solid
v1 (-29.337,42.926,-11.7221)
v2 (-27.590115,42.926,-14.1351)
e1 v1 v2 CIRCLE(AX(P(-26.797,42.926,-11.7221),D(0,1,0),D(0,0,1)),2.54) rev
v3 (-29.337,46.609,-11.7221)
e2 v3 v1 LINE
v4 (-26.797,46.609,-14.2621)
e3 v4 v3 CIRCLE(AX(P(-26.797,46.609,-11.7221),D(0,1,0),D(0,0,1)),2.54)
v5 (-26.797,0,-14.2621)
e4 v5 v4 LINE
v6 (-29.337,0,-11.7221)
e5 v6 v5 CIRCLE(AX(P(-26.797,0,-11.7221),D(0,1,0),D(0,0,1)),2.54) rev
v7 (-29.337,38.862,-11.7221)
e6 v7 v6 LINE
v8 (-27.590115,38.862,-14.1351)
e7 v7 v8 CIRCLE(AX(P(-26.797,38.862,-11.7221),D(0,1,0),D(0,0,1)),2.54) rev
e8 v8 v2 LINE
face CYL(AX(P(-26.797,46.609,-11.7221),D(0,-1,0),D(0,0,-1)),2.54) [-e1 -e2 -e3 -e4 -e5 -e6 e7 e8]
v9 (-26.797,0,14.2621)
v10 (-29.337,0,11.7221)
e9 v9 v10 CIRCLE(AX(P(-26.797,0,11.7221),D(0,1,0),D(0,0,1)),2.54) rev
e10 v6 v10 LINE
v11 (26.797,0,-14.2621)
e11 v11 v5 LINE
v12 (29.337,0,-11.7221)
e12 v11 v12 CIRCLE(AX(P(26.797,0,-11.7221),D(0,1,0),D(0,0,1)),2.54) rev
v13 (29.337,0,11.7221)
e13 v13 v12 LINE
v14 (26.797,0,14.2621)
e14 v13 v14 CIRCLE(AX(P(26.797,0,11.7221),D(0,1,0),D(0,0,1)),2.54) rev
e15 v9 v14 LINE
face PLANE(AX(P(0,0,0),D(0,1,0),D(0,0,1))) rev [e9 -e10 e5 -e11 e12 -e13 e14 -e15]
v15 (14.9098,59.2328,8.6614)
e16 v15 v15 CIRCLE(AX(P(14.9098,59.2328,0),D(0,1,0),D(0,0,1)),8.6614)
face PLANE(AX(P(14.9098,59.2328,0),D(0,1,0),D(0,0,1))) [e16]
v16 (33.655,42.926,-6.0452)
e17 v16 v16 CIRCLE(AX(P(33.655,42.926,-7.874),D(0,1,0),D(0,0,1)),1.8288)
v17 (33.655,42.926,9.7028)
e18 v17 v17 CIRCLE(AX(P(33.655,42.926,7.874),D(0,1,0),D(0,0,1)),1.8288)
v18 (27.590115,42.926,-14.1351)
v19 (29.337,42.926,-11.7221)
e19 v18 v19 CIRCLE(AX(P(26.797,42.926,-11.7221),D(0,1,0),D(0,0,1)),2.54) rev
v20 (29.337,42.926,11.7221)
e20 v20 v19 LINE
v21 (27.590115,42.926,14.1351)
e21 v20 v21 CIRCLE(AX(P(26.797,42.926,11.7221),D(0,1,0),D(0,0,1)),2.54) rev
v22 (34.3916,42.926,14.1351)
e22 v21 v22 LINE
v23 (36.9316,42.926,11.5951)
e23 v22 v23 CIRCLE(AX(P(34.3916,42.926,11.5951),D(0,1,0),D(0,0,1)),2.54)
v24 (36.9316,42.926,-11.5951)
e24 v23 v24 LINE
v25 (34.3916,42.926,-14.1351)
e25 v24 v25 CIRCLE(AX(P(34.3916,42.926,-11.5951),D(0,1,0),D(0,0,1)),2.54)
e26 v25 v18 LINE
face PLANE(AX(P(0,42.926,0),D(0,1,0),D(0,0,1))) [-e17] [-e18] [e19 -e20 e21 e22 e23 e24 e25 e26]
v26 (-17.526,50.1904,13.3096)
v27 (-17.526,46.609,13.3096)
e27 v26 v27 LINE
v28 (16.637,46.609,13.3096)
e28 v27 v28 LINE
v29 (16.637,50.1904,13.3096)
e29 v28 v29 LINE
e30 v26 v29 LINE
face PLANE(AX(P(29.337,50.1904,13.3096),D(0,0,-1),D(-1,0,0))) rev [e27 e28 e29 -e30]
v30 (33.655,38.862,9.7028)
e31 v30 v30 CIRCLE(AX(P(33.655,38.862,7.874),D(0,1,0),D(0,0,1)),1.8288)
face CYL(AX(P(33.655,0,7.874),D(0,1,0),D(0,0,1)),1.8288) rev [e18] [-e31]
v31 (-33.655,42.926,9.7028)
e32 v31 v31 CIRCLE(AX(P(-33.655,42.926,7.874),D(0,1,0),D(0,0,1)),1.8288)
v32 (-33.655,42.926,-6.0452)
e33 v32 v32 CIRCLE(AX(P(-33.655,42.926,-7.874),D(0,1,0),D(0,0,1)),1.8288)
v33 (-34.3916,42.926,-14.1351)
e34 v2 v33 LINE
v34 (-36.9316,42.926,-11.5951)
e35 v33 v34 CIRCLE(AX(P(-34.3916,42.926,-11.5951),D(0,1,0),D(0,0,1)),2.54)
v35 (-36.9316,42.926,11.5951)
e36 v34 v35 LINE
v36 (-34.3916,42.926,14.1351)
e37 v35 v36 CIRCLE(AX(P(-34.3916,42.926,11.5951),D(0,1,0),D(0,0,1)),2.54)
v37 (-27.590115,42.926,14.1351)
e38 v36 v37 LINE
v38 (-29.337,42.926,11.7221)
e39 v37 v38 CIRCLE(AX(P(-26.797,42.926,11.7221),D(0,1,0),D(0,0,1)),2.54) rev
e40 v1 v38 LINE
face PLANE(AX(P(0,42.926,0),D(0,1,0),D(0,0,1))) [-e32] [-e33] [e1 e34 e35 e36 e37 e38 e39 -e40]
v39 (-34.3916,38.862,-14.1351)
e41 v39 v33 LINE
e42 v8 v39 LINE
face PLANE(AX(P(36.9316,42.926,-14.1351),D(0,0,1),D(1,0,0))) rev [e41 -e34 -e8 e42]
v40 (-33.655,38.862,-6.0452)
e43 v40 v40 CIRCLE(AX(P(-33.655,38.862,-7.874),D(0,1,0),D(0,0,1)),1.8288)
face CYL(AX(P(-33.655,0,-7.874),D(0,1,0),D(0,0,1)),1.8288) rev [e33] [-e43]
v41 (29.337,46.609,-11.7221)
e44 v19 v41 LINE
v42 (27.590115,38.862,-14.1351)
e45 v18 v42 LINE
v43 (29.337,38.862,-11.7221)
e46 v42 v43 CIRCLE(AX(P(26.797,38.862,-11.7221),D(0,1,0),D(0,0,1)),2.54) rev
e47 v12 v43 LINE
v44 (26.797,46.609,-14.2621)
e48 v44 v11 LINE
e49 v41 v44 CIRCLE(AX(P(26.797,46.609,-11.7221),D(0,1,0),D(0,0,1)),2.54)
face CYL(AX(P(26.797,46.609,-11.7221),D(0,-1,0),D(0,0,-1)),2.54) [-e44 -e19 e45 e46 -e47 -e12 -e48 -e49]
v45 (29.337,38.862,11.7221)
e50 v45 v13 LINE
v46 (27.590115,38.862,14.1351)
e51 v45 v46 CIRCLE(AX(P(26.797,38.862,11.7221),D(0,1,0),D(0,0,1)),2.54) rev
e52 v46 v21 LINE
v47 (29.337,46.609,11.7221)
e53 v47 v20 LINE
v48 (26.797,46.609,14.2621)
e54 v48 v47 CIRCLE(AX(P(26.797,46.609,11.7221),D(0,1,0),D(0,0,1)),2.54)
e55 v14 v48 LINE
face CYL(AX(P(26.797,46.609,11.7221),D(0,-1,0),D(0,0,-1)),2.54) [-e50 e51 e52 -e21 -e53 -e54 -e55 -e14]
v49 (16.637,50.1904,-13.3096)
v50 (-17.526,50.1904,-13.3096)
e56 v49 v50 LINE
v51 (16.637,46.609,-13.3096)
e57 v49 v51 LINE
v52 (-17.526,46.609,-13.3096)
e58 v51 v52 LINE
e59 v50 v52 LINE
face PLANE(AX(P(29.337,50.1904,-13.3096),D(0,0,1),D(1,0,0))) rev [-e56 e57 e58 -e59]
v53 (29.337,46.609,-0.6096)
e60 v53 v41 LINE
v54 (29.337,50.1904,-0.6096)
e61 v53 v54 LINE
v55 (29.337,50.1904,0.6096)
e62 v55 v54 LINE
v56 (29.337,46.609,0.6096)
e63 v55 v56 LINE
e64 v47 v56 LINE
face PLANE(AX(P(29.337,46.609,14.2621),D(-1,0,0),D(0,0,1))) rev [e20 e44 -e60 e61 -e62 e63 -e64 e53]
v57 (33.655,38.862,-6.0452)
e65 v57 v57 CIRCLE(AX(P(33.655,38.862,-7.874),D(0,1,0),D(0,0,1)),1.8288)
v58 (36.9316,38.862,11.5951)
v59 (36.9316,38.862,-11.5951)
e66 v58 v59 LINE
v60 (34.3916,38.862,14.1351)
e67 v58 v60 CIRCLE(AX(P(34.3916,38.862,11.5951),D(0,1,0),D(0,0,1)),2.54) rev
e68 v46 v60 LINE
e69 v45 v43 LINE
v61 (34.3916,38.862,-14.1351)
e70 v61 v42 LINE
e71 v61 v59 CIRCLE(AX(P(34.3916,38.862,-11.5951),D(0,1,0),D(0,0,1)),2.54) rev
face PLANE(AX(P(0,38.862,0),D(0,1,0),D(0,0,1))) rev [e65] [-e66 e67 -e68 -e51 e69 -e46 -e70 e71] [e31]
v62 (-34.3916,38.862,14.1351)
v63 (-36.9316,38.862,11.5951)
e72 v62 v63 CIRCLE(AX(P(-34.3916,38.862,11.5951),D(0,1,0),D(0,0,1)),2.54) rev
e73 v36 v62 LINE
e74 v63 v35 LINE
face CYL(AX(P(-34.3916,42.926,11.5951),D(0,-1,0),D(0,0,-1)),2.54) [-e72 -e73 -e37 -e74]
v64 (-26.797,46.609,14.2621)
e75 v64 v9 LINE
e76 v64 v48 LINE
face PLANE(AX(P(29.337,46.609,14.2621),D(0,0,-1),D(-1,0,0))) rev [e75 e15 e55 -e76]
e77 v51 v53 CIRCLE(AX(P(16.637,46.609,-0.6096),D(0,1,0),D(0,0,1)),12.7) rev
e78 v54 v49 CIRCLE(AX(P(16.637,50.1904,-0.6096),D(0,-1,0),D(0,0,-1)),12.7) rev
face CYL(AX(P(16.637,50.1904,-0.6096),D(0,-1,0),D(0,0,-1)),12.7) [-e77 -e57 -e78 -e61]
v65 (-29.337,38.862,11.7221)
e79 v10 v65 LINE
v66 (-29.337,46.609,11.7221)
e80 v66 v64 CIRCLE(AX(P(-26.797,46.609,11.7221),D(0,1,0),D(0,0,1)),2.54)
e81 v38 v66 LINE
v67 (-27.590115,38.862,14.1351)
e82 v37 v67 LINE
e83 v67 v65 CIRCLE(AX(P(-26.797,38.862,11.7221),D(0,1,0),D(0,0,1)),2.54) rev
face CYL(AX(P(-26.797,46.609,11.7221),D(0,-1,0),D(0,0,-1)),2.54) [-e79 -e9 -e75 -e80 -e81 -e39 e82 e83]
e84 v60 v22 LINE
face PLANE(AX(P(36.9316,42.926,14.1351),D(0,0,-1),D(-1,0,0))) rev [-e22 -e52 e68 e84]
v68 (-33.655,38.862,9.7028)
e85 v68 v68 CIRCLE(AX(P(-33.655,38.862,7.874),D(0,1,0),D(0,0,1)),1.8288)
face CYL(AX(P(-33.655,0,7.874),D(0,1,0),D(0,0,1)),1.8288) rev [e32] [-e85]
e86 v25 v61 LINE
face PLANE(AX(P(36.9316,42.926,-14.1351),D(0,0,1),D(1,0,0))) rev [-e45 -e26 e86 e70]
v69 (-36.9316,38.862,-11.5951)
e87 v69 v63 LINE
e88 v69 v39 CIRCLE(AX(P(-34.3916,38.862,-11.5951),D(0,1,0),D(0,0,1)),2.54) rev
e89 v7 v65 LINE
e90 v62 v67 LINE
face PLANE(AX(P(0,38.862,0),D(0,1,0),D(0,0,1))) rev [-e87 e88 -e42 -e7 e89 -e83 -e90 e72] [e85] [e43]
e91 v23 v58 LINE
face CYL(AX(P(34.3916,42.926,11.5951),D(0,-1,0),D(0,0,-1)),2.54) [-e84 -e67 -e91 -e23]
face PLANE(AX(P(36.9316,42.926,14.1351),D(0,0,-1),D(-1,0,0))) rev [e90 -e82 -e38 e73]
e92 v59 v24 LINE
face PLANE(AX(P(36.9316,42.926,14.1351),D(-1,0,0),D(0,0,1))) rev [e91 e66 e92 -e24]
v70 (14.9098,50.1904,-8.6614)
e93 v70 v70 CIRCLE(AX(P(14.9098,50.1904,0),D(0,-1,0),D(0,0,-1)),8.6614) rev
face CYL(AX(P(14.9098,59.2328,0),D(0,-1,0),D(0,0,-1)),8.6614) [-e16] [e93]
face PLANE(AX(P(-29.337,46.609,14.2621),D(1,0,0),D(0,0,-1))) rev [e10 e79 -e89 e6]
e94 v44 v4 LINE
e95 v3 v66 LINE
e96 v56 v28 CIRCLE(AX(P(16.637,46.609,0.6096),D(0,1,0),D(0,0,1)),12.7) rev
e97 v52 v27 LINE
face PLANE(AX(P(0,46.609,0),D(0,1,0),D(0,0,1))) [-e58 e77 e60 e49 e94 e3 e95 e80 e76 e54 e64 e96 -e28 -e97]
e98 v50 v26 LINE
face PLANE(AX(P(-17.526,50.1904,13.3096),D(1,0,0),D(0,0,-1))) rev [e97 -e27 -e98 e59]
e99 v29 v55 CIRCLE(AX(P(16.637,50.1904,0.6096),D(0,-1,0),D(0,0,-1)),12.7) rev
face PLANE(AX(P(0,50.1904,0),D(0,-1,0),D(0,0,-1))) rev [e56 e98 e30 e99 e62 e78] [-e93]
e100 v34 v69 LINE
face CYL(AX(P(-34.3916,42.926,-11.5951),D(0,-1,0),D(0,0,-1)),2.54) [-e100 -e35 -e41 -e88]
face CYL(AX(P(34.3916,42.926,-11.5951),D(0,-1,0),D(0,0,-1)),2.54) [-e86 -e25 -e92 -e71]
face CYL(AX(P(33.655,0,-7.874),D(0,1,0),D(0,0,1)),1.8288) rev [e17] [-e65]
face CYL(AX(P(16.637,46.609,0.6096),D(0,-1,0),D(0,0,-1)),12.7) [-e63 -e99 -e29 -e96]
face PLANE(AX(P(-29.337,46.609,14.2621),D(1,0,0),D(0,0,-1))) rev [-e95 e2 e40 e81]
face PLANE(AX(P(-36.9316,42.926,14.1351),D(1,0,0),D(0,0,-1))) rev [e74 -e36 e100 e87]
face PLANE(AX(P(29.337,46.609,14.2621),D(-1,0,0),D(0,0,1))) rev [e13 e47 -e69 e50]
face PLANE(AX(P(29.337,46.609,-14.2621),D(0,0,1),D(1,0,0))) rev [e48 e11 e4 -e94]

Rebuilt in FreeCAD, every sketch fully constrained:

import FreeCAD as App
import Part
import Sketcher
from FreeCAD import Vector
Q = App.Units.Quantity


def edges_at(feature, points):
    """Names of the edges that pass closest to the given points."""
    edges = feature.Shape.Edges
    near = lambda p: min(range(len(edges)), key=lambda i: edges[i].distToShape(Part.Vertex(*p))[0])
    return sorted({f"Edge{near(p) + 1}" for p in points})


def add_polygon(sketch, points):
    """Adds a closed chain of lines whose ends are joined by coincident constraints."""
    first, n = sketch.GeometryCount, len(points)
    for a, b in zip(points, points[1:] + points[:1]):
        sketch.addGeometry(Part.LineSegment(App.Vector(*a, 0), App.Vector(*b, 0)), False)
    for i in range(n):
        sketch.addConstraint(Sketcher.Constraint("Coincident", first + i, 2, first + (i + 1) % n, 1))

doc = App.newDocument("Part")
body = doc.addObject("PartDesign::Body", "Body")

# Sketch on XZ plane
sketch1 = body.newObject("Sketcher::SketchObject", "Sketch")
sketch1.AttachmentSupport = (doc.getObject("XZ_Plane"), [""])
sketch1.MapMode = "FlatFace"
add_polygon(sketch1, [(-29, -14), (-29, 14), (29, 14), (29, -14)])  # lines 0-3
sketch1.addConstraint(Sketcher.Constraint("Vertical", 0))
sketch1.addConstraint(Sketcher.Constraint("Horizontal", 1))
sketch1.addConstraint(Sketcher.Constraint("Vertical", 2))
sketch1.addConstraint(Sketcher.Constraint("Horizontal", 3))
sketch1.addConstraint(Sketcher.Constraint("Symmetric", 0, 2, 2, 2, -1, 1))
sketch1.addConstraint(Sketcher.Constraint("DistanceX", 1, 1, 1, 2, Q("2.31 in")))
sketch1.addConstraint(Sketcher.Constraint("DistanceY", 0, 1, 0, 2, Q("1.123 in")))
pad1 = body.newObject("PartDesign::Pad", "Pad")
pad1.Profile = sketch1
pad1.Length = Q("1.835 in")
pad1.Reversed = True

# Sketch on XZ plane
sketch2 = body.newObject("Sketcher::SketchObject", "Sketch001")
sketch2.AttachmentSupport = (doc.getObject("XZ_Plane"), [""])
sketch2.MapMode = "FlatFace"
sketch2.AttachmentOffset = App.Placement(Vector(0, 0, -1.835 * 25.4), App.Rotation())
add_polygon(sketch2, [(-18, -13), (-18, 13), (29, 13), (29, -13)])  # lines 0-3
sketch2.addConstraint(Sketcher.Constraint("Vertical", 0))
sketch2.addConstraint(Sketcher.Constraint("Horizontal", 1))
sketch2.addConstraint(Sketcher.Constraint("Vertical", 2))
sketch2.addConstraint(Sketcher.Constraint("Horizontal", 3))
sketch2.addConstraint(Sketcher.Constraint("DistanceX", 1, 1, 1, 2, Q("1.845 in")))
sketch2.addConstraint(Sketcher.Constraint("DistanceY", 0, 1, 0, 2, Q("1.048 in")))
sketch2.addConstraint(Sketcher.Constraint("DistanceX", 0, 2, -1, 1, Q("0.69 in")))
sketch2.addConstraint(Sketcher.Constraint("DistanceY", -1, 1, 0, 2, Q("0.524 in")))
pad2 = body.newObject("PartDesign::Pad", "Pad001")
pad2.Profile = sketch2
pad2.Length = Q("0.141 in")
pad2.Reversed = True
doc.recompute()

fillet = body.newObject("PartDesign::Fillet", "Fillet")
fillet.Base = (pad2, edges_at(pad2, [(29.337, 48.4, 13.31), (29.337, 48.4, -13.31)]))
fillet.Radius = Q("0.5 in")
doc.recompute()

fillet2 = body.newObject("PartDesign::Fillet", "Fillet001")
fillet2.Base = (fillet, edges_at(fillet, [
    (29.337, 23.305, 14.262),
    (29.337, 23.305, -14.262),
    (-29.337, 23.305, -14.262),
    (-29.337, 23.305, 14.262),
]))
fillet2.Radius = Q("0.1 in")

# Sketch on XZ plane
sketch3 = body.newObject("Sketcher::SketchObject", "Sketch002")
sketch3.AttachmentSupport = (doc.getObject("XZ_Plane"), [""])
sketch3.MapMode = "FlatFace"
sketch3.AttachmentOffset = App.Placement(Vector(0, 0, -1.53 * 25.4), App.Rotation())
add_polygon(sketch3, [(-37, -14), (-37, 14), (37, 14), (37, -14)])  # lines 0-3
sketch3.addConstraint(Sketcher.Constraint("Vertical", 0))
sketch3.addConstraint(Sketcher.Constraint("Horizontal", 1))
sketch3.addConstraint(Sketcher.Constraint("Vertical", 2))
sketch3.addConstraint(Sketcher.Constraint("Horizontal", 3))
sketch3.addConstraint(Sketcher.Constraint("Symmetric", 0, 2, 2, 2, -1, 1))
sketch3.addConstraint(Sketcher.Constraint("DistanceX", 1, 1, 1, 2, Q("2.908 in")))
sketch3.addConstraint(Sketcher.Constraint("DistanceY", 0, 1, 0, 2, Q("1.113 in")))
pad3 = body.newObject("PartDesign::Pad", "Pad002")
pad3.Profile = sketch3
pad3.Length = Q("0.16 in")
pad3.Reversed = True
doc.recompute()

fillet3 = body.newObject("PartDesign::Fillet", "Fillet002")
fillet3.Base = (pad3, edges_at(pad3, [
    (36.932, 40.894, -14.135),
    (-36.932, 40.894, -14.135),
    (-36.932, 40.894, 14.135),
    (36.932, 40.894, 14.135),
]))
fillet3.Radius = Q("0.1 in")

# Sketch on XZ plane
sketch4 = body.newObject("Sketcher::SketchObject", "Sketch003")
sketch4.AttachmentSupport = (doc.getObject("XZ_Plane"), [""])
sketch4.MapMode = "FlatFace"
sketch4.AttachmentOffset = App.Placement(Vector(0, 0, -1.69 * 25.4), App.Rotation())
sketch4.addGeometry(Part.Circle(Vector(-33.7, -7.9, 0), Vector(0, 0, 1), 1.8), False)
sketch4.addGeometry(Part.Circle(Vector(-33.7, 7.9, 0), Vector(0, 0, 1), 1.8), False)
sketch4.addGeometry(Part.Circle(Vector(33.7, 7.9, 0), Vector(0, 0, 1), 1.8), False)
sketch4.addGeometry(Part.Circle(Vector(33.7, -7.9, 0), Vector(0, 0, 1), 1.8), False)
sketch4.addConstraint(Sketcher.Constraint("Equal", 0, 1))
sketch4.addConstraint(Sketcher.Constraint("Equal", 1, 2))
sketch4.addConstraint(Sketcher.Constraint("Equal", 2, 3))
sketch4.addConstraint(Sketcher.Constraint("Symmetric", 0, 3, 2, 3, -1, 1))
sketch4.addConstraint(Sketcher.Constraint("Symmetric", 1, 3, 3, 3, -1, 1))
sketch4.addConstraint(Sketcher.Constraint("Symmetric", 1, 3, 2, 3, -2))
sketch4.addConstraint(Sketcher.Constraint("Diameter", 0, Q("0.144 in")))
sketch4.addConstraint(Sketcher.Constraint("DistanceY", 0, 3, -1, 1, Q("0.31 in")))
sketch4.addConstraint(Sketcher.Constraint("DistanceX", 1, 3, 2, 3, Q("2.65 in")))
pocket1 = body.newObject("PartDesign::Pocket", "Pocket")
pocket1.Profile = sketch4
pocket1.Type = "ThroughAll"
pocket1.Reversed = True

# Sketch on XZ plane
sketch5 = body.newObject("Sketcher::SketchObject", "Sketch004")
sketch5.AttachmentSupport = (doc.getObject("XZ_Plane"), [""])
sketch5.MapMode = "FlatFace"
sketch5.AttachmentOffset = App.Placement(Vector(0, 0, -1.835 * 25.4), App.Rotation())
sketch5.addGeometry(Part.Circle(Vector(15, 0, 0), Vector(0, 0, 1), 9), False)
sketch5.addConstraint(Sketcher.Constraint("PointOnObject", 0, 3, -1))
sketch5.addConstraint(Sketcher.Constraint("Diameter", 0, Q("0.682 in")))
sketch5.addConstraint(Sketcher.Constraint("DistanceX", -1, 1, 0, 3, Q("0.587 in")))
pad4 = body.newObject("PartDesign::Pad", "Pad003")
pad4.Profile = sketch5
pad4.Length = Q("0.497 in")
pad4.Reversed = True

doc.recompute()
